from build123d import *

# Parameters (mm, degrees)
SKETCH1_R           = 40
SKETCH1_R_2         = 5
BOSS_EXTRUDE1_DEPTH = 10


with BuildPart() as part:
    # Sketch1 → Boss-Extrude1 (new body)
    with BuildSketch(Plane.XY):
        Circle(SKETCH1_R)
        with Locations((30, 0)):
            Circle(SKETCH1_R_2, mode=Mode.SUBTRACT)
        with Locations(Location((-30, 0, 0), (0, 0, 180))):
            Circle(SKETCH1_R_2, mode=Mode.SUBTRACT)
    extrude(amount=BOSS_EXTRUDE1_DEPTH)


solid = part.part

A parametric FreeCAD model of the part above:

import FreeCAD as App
import Part
import Sketcher
from FreeCAD import Vector

doc = App.newDocument("Part")
body = doc.addObject("PartDesign::Body", "Body")

# Sketch on XY plane
sketch1 = body.newObject("Sketcher::SketchObject", "Sketch")
sketch1.AttachmentSupport = (doc.getObject("XY_Plane"), [""])
sketch1.MapMode = "FlatFace"
sketch1.addGeometry([
    Part.Circle(Vector(0, 0, 0), Vector(0, 0, 1), 40),
    Part.Circle(Vector(-30, 0, 0), Vector(0, 0, 1), 5),
    Part.Circle(Vector(30, 0, 0), Vector(0, 0, 1), 5),
], False)
sketch1.addConstraint([
    Sketcher.Constraint("Coincident", 0, 3, -1, 1),
    Sketcher.Constraint("Equal", 1, 2),
    Sketcher.Constraint("Symmetric", 1, 3, 2, 3, -1, 1),
    Sketcher.Constraint("PointOnObject", 1, 3, -1),
    Sketcher.Constraint("Diameter", 0, 80.0),
    Sketcher.Constraint("Diameter", 1, 10.0),
    Sketcher.Constraint("DistanceX", 1, 3, -1, 1, 30.0),
])
pad1 = body.newObject("PartDesign::Pad", "Pad")
pad1.Profile = sketch1
pad1.Length = 10

doc.recompute()
